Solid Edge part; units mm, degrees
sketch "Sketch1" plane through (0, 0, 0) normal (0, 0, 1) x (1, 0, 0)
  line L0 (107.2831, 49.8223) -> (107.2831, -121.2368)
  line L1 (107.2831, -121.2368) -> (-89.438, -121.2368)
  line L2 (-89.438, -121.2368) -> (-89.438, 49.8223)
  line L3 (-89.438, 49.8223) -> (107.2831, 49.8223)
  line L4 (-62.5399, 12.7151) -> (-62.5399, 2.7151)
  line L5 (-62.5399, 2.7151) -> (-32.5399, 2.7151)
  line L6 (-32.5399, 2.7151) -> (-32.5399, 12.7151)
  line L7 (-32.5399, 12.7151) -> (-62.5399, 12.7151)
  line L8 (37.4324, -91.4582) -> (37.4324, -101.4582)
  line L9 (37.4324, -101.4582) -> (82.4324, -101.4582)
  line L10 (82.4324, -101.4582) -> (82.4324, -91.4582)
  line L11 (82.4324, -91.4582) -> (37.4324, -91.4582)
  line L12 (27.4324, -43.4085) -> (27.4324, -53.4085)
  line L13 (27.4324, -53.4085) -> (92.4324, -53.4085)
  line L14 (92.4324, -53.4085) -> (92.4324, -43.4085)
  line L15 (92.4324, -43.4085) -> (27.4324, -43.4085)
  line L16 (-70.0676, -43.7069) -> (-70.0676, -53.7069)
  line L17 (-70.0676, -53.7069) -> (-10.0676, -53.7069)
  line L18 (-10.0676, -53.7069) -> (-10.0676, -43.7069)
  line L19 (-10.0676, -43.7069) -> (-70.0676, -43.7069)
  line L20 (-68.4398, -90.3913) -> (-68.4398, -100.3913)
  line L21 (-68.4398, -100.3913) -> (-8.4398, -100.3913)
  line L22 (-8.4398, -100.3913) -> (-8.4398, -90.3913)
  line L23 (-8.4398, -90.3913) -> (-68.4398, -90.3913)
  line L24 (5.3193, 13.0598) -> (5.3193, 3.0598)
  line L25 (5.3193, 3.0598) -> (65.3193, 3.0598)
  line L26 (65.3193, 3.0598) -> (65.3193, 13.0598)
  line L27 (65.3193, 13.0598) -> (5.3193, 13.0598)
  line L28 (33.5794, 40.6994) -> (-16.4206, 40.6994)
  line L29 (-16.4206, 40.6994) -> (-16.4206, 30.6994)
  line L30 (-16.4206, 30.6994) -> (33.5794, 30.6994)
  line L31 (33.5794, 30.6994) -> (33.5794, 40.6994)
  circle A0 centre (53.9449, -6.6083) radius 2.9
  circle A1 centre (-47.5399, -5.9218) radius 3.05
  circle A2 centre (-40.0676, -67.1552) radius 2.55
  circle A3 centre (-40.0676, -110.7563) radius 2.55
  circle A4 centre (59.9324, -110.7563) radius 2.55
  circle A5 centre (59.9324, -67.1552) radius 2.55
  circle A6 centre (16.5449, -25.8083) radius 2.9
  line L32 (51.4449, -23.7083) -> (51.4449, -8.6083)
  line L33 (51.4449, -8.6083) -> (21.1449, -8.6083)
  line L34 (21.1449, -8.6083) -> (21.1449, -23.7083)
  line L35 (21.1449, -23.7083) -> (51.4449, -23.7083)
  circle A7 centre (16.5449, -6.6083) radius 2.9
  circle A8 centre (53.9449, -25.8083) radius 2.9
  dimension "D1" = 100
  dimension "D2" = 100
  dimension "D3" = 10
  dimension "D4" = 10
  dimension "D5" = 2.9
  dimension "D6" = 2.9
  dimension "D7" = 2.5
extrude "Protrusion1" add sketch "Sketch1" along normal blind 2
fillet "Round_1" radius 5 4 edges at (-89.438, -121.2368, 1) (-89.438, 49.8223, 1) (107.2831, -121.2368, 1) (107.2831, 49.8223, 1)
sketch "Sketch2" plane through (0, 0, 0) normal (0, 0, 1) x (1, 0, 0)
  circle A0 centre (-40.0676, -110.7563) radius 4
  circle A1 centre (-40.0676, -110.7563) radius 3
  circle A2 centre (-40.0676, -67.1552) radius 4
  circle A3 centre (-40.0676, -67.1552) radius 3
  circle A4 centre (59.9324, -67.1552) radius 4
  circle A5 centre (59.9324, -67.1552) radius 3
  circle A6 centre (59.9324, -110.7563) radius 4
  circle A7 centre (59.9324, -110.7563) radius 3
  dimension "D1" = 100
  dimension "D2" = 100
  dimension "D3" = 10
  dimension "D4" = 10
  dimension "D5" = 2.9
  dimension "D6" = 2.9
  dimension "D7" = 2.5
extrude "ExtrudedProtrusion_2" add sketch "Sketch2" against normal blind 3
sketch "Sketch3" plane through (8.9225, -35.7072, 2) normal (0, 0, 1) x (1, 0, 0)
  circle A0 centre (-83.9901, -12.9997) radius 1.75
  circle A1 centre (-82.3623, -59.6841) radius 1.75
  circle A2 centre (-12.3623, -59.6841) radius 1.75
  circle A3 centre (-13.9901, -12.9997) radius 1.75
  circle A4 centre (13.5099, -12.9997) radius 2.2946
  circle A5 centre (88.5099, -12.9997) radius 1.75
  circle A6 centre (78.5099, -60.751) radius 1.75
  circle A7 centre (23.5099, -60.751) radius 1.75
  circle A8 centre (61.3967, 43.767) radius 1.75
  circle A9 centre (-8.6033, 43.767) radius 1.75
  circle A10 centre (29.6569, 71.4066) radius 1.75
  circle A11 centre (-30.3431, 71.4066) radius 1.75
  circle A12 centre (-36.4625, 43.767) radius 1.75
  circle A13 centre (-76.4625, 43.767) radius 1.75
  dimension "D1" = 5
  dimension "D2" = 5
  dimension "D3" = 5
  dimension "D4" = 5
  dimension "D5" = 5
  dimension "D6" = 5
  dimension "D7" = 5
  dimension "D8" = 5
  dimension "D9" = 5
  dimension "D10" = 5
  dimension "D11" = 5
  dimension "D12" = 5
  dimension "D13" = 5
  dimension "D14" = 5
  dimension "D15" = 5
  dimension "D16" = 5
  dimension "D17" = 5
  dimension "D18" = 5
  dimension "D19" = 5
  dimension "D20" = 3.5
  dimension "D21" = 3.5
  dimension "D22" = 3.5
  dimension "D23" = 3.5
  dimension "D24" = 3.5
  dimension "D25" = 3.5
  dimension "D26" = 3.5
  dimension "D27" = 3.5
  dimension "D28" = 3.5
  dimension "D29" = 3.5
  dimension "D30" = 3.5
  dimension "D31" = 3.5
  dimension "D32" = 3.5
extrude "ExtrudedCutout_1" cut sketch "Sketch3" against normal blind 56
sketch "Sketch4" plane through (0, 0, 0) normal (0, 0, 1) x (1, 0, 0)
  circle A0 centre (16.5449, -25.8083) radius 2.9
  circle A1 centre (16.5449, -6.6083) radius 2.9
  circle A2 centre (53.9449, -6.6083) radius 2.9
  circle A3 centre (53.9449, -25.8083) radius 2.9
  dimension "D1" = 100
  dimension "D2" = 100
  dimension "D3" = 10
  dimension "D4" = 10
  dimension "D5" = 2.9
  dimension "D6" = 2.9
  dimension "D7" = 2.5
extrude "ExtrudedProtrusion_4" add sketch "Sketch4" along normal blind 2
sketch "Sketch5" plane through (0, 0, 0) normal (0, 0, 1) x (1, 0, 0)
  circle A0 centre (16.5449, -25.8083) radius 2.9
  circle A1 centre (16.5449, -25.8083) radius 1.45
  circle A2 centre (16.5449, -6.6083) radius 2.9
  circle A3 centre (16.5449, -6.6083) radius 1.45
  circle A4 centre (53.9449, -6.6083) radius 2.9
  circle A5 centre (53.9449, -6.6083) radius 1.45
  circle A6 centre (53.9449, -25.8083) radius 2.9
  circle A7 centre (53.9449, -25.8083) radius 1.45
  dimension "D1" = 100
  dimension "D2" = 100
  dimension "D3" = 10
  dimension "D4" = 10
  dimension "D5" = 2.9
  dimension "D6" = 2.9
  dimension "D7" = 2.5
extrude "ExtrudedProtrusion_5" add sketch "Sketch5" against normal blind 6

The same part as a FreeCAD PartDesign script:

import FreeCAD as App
import Part
import Sketcher
from FreeCAD import Vector
Q = App.Units.Quantity


def edges_at(feature, points):
    """Names of the edges that pass closest to the given points."""
    edges = feature.Shape.Edges
    near = lambda p: min(range(len(edges)), key=lambda i: edges[i].distToShape(Part.Vertex(*p))[0])
    return sorted({f"Edge{near(p) + 1}" for p in points})


def add_polygon(sketch, points):
    """Adds a closed chain of lines whose ends are joined by coincident constraints."""
    first, n = sketch.GeometryCount, len(points)
    for a, b in zip(points, points[1:] + points[:1]):
        sketch.addGeometry(Part.LineSegment(App.Vector(*a, 0), App.Vector(*b, 0)), False)
    for i in range(n):
        sketch.addConstraint(Sketcher.Constraint("Coincident", first + i, 2, first + (i + 1) % n, 1))

doc = App.newDocument("Part")
body = doc.addObject("PartDesign::Body", "Body")

sketch1 = body.newObject("Sketcher::SketchObject", "Sketch")
sketch1.AttachmentSupport = (doc.getObject("XY_Plane"), [""])
sketch1.MapMode = "FlatFace"
add_polygon(sketch1, [(107.3, -121.2), (107.3, 49.8), (-89.4, 49.8), (-89.4, -121.2)])
sketch1.addGeometry(Part.Circle(Vector(-40.1, -110.8, 0), Vector(0, 0, 1), 2.5), False)
add_polygon(sketch1, [(-68.4, -100.4), (-68.4, -90.4), (-8.4, -90.4), (-8.4, -100.4)])
sketch1.addGeometry(Part.Circle(Vector(-40.1, -67.2, 0), Vector(0, 0, 1), 2.5), False)
add_polygon(sketch1, [(-70.1, -53.7), (-70.1, -43.7), (-10.1, -43.7), (-10.1, -53.7)])
sketch1.addGeometry(Part.Circle(Vector(59.9, -110.8, 0), Vector(0, 0, 1), 2.5), False)
add_polygon(sketch1, [(37.4, -101.5), (37.4, -91.5), (82.4, -91.5), (82.4, -101.5)])
sketch1.addGeometry(Part.Circle(Vector(59.9, -67.2, 0), Vector(0, 0, 1), 2.5), False)
add_polygon(sketch1, [(27.4, -53.4), (27.4, -43.4), (92.4, -43.4), (92.4, -53.4)])
sketch1.addGeometry(Part.Circle(Vector(-47.5, -5.9, 0), Vector(0, 0, 1), 3), False)
add_polygon(sketch1, [(-62.5, 2.7), (-62.5, 12.7), (-32.5, 12.7), (-32.5, 2.7)])
add_polygon(sketch1, [(-16.4, 40.7), (33.6, 40.7), (33.6, 30.7), (-16.4, 30.7)])
sketch1.addGeometry(Part.Circle(Vector(16.5, -25.8, 0), Vector(0, 0, 1), 2.9), False)
sketch1.addGeometry(Part.Circle(Vector(53.9, -25.8, 0), Vector(0, 0, 1), 2.9), False)
add_polygon(sketch1, [(51.4, -8.6), (51.4, -23.7), (21.1, -23.7), (21.1, -8.6)])
sketch1.addGeometry(Part.Circle(Vector(16.5, -6.6, 0), Vector(0, 0, 1), 2.9), False)
sketch1.addGeometry(Part.Circle(Vector(53.9, -6.6, 0), Vector(0, 0, 1), 2.9), False)
add_polygon(sketch1, [(5.3, 3.1), (5.3, 13.1), (65.3, 13.1), (65.3, 3.1)])
sketch1.addConstraint([
    Sketcher.Constraint("Vertical", 0),
    Sketcher.Constraint("Horizontal", 1),
    Sketcher.Constraint("Vertical", 2),
    Sketcher.Constraint("Horizontal", 3),
    Sketcher.Constraint("Vertical", 5),
    Sketcher.Constraint("Horizontal", 6),
    Sketcher.Constraint("Vertical", 7),
    Sketcher.Constraint("Horizontal", 8),
    Sketcher.Constraint("Vertical", 10),
    Sketcher.Constraint("Horizontal", 11),
    Sketcher.Constraint("Vertical", 12),
    Sketcher.Constraint("Horizontal", 13),
    Sketcher.Constraint("Vertical", 15),
    Sketcher.Constraint("Horizontal", 16),
    Sketcher.Constraint("Vertical", 17),
    Sketcher.Constraint("Horizontal", 18),
    Sketcher.Constraint("Vertical", 20),
    Sketcher.Constraint("Horizontal", 21),
    Sketcher.Constraint("Vertical", 22),
    Sketcher.Constraint("Horizontal", 23),
    Sketcher.Constraint("Vertical", 25),
    Sketcher.Constraint("Horizontal", 26),
    Sketcher.Constraint("Vertical", 27),
    Sketcher.Constraint("Horizontal", 28),
    Sketcher.Constraint("Horizontal", 29),
    Sketcher.Constraint("Vertical", 30),
    Sketcher.Constraint("Horizontal", 31),
    Sketcher.Constraint("Vertical", 32),
    Sketcher.Constraint("Vertical", 35),
    Sketcher.Constraint("Horizontal", 36),
    Sketcher.Constraint("Vertical", 37),
    Sketcher.Constraint("Horizontal", 38),
    Sketcher.Constraint("Vertical", 41),
    Sketcher.Constraint("Horizontal", 42),
    Sketcher.Constraint("Vertical", 43),
    Sketcher.Constraint("Horizontal", 44),
    Sketcher.Constraint("Equal", 4, 9),
    Sketcher.Constraint("Equal", 9, 14),
    Sketcher.Constraint("Equal", 14, 19),
    Sketcher.Constraint("Equal", 33, 34),
    Sketcher.Constraint("Equal", 34, 39),
    Sketcher.Constraint("Equal", 39, 40),
    Sketcher.Constraint("Horizontal", 4, 3, 14, 3),
    Sketcher.Constraint("Horizontal", 9, 3, 19, 3),
    Sketcher.Constraint("Horizontal", 33, 3, 34, 3),
    Sketcher.Constraint("Horizontal", 39, 3, 40, 3),
    Sketcher.Constraint("Vertical", 4, 3, 9, 3),
    Sketcher.Constraint("Vertical", 14, 3, 19, 3),
    Sketcher.Constraint("Vertical", 33, 3, 39, 3),
    Sketcher.Constraint("Vertical", 34, 3, 40, 3),
    Sketcher.Constraint("Equal", 8, 11),
    Sketcher.Constraint("Equal", 13, 42),
    Sketcher.Constraint("Equal", 7, 10),
    Sketcher.Constraint("Equal", 12, 15),
    Sketcher.Constraint("Equal", 17, 20),
    Sketcher.Constraint("Equal", 22, 25),
    Sketcher.Constraint("Equal", 27, 30),
    Sketcher.Constraint("Equal", 32, 41),
    Sketcher.Constraint("Diameter", 4, Q("5.1 mm")),
    Sketcher.Constraint("Diameter", 24, Q("6.1 mm")),
    Sketcher.Constraint("Diameter", 33, Q("5.8 mm")),
    Sketcher.Constraint("DistanceX", 6, 1, 6, 2, Q("60 mm")),
    Sketcher.Constraint("DistanceX", 16, 1, 16, 2, Q("45 mm")),
    Sketcher.Constraint("DistanceX", 21, 1, 21, 2, Q("65 mm")),
    Sketcher.Constraint("DistanceX", 26, 1, 26, 2, Q("30 mm")),
    Sketcher.Constraint("DistanceX", 29, 1, 29, 2, Q("50 mm")),
    Sketcher.Constraint("DistanceY", 5, 1, 5, 2, Q("10 mm")),
    Sketcher.Constraint("DistanceX", 36, 2, 36, 1, Q("30.3 mm")),
    Sketcher.Constraint("DistanceY", 35, 2, 35, 1, Q("15.1 mm")),
    Sketcher.Constraint("DistanceX", 4, 3, 14, 3, Q("100 mm")),
    Sketcher.Constraint("DistanceX", 10, 2, 9, 3, Q("30 mm")),
    Sketcher.Constraint("DistanceX", 16, 2, 21, 2, Q("10 mm")),
    Sketcher.Constraint("DistanceX", 25, 2, 24, 3, Q("15 mm")),
    Sketcher.Constraint("DistanceY", 37, 2, 39, 3, Q("2 mm")),
    Sketcher.Constraint("DistanceX", 33, 3, 34, 3, Q("37.4 mm")),
    Sketcher.Constraint("DistanceY", 33, 3, 39, 3, Q("19.2 mm")),
    Sketcher.Constraint("DistanceX", 5, 2, 24, 3, Q("20.9 mm")),
    Sketcher.Constraint("DistanceX", 15, 2, 14, 3, Q("22.5 mm")),
    Sketcher.Constraint("DistanceX", 35, 2, 34, 3, Q("2.5 mm")),
    Sketcher.Constraint("DistanceX", 1, 2, 1, 1, Q("196.721 mm")),
    Sketcher.Constraint("DistanceY", 0, 1, 0, 2, Q("171.059 mm")),
    Sketcher.Constraint("DistanceX", 24, 3, -1, 1, Q("47.54 mm")),
    Sketcher.Constraint("DistanceY", 16, 2, 34, 3, Q("65.65 mm")),
    Sketcher.Constraint("DistanceX", 31, 2, 41, 2, Q("21.74 mm")),
    Sketcher.Constraint("DistanceX", -1, 1, 33, 3, Q("16.545 mm")),
    Sketcher.Constraint("DistanceX", -1, 1, 0, 2, Q("107.283 mm")),
    Sketcher.Constraint("DistanceY", 10, 2, -1, 1, Q("43.707 mm")),
    Sketcher.Constraint("DistanceY", -1, 1, 25, 2, Q("12.715 mm")),
    Sketcher.Constraint("DistanceY", 4, 3, 9, 3, Q("43.601 mm")),
    Sketcher.Constraint("DistanceY", 19, 3, 33, 3, Q("41.347 mm")),
    Sketcher.Constraint("DistanceY", 24, 3, 1, 2, Q("55.744 mm")),
    Sketcher.Constraint("DistanceY", 4, 3, 5, 2, Q("20.365 mm")),
    Sketcher.Constraint("DistanceY", 10, 2, 24, 3, Q("37.785 mm")),
    Sketcher.Constraint("DistanceY", 39, 3, 41, 2, Q("19.668 mm")),
    Sketcher.Constraint("DistanceX", 4, 3, -1, 1, Q("40.0676 mm")),
    Sketcher.Constraint("DistanceY", 4, 3, -1, 1, Q("110.7563 mm")),
    Sketcher.Constraint("DistanceY", 20, 2, -1, 1, Q("43.4085 mm")),
    Sketcher.Constraint("DistanceX", -1, 1, 29, 2, Q("33.5794 mm")),
    Sketcher.Constraint("DistanceY", -1, 1, 29, 2, Q("40.6994 mm")),
])
pad1 = body.newObject("PartDesign::Pad", "Pad")
pad1.Profile = sketch1
pad1.Length = 2
doc.recompute()

fillet = body.newObject("PartDesign::Fillet", "Fillet")
fillet.Base = (pad1, edges_at(pad1, [
    (-89.438, -121.237, 1),
    (-89.438, 49.822, 1),
    (107.283, -121.237, 1),
    (107.283, 49.822, 1),
]))
fillet.Radius = 5

sketch2 = body.newObject("Sketcher::SketchObject", "Sketch001")
sketch2.AttachmentSupport = (doc.getObject("XY_Plane"), [""])
sketch2.MapMode = "FlatFace"
sketch2.addGeometry([
    Part.Circle(Vector(-40.1, -110.8, 0), Vector(0, 0, 1), 4),
    Part.Circle(Vector(-40.1, -110.8, 0), Vector(0, 0, 1), 3),
    Part.Circle(Vector(-40.1, -67.2, 0), Vector(0, 0, 1), 4),
    Part.Circle(Vector(-40.1, -67.2, 0), Vector(0, 0, 1), 3),
    Part.Circle(Vector(59.9, -67.2, 0), Vector(0, 0, 1), 4),
    Part.Circle(Vector(59.9, -67.2, 0), Vector(0, 0, 1), 3),
    Part.Circle(Vector(59.9, -110.8, 0), Vector(0, 0, 1), 4),
    Part.Circle(Vector(59.9, -110.8, 0), Vector(0, 0, 1), 3),
], False)
sketch2.addConstraint([
    Sketcher.Constraint("Coincident", 1, 3, 0, 3),
    Sketcher.Constraint("Coincident", 3, 3, 2, 3),
    Sketcher.Constraint("Coincident", 5, 3, 4, 3),
    Sketcher.Constraint("Coincident", 7, 3, 6, 3),
    Sketcher.Constraint("Equal", 0, 2),
    Sketcher.Constraint("Equal", 1, 3),
    Sketcher.Constraint("Equal", 2, 4),
    Sketcher.Constraint("Equal", 3, 5),
    Sketcher.Constraint("Equal", 4, 6),
    Sketcher.Constraint("Equal", 5, 7),
    Sketcher.Constraint("Horizontal", 3, 3, 4, 3),
    Sketcher.Constraint("Horizontal", 1, 3, 6, 3),
    Sketcher.Constraint("Vertical", 1, 3, 2, 3),
    Sketcher.Constraint("Vertical", 5, 3, 6, 3),
    Sketcher.Constraint("Diameter", 0, Q("8 mm")),
    Sketcher.Constraint("Diameter", 1, Q("6 mm")),
    Sketcher.Constraint("DistanceX", 2, 3, 4, 3, Q("100 mm")),
    Sketcher.Constraint("DistanceY", 0, 3, 2, 3, Q("43.601 mm")),
    Sketcher.Constraint("DistanceX", 0, 3, -1, 1, Q("40.0676 mm")),
    Sketcher.Constraint("DistanceY", 0, 3, -1, 1, Q("110.7563 mm")),
])
pad2 = body.newObject("PartDesign::Pad", "Pad001")
pad2.Profile = sketch2
pad2.Length = 3
pad2.Reversed = True

sketch3 = body.newObject("Sketcher::SketchObject", "Sketch002")
sketch3.AttachmentSupport = (doc.getObject("XY_Plane"), [""])
sketch3.MapMode = "FlatFace"
sketch3.AttachmentOffset = App.Placement(Vector(0, 0, 2), App.Rotation())
sketch3.addGeometry([
    Part.Circle(Vector(-75.1, -48.7, 0), Vector(0, 0, 1), 1.8),
    Part.Circle(Vector(-73.4, -95.4, 0), Vector(0, 0, 1), 1.8),
    Part.Circle(Vector(-3.4, -95.4, 0), Vector(0, 0, 1), 1.8),
    Part.Circle(Vector(-5.1, -48.7, 0), Vector(0, 0, 1), 1.8),
    Part.Circle(Vector(22.4, -48.7, 0), Vector(0, 0, 1), 2.3),
    Part.Circle(Vector(97.4, -48.7, 0), Vector(0, 0, 1), 1.8),
    Part.Circle(Vector(87.4, -96.5, 0), Vector(0, 0, 1), 1.8),
    Part.Circle(Vector(32.4, -96.5, 0), Vector(0, 0, 1), 1.8),
    Part.Circle(Vector(70.3, 8.1, 0), Vector(0, 0, 1), 1.8),
    Part.Circle(Vector(0.3, 8.1, 0), Vector(0, 0, 1), 1.8),
    Part.Circle(Vector(38.6, 35.7, 0), Vector(0, 0, 1), 1.8),
    Part.Circle(Vector(-21.4, 35.7, 0), Vector(0, 0, 1), 1.8),
    Part.Circle(Vector(-27.5, 8.1, 0), Vector(0, 0, 1), 1.8),
    Part.Circle(Vector(-67.5, 8.1, 0), Vector(0, 0, 1), 1.8),
], False)
sketch3.addConstraint([
    Sketcher.Constraint("Equal", 0, 1),
    Sketcher.Constraint("Equal", 1, 2),
    Sketcher.Constraint("Equal", 2, 3),
    Sketcher.Constraint("Equal", 3, 5),
    Sketcher.Constraint("Equal", 5, 6),
    Sketcher.Constraint("Equal", 6, 7),
    Sketcher.Constraint("Equal", 7, 8),
    Sketcher.Constraint("Equal", 8, 9),
    Sketcher.Constraint("Equal", 9, 10),
    Sketcher.Constraint("Equal", 10, 11),
    Sketcher.Constraint("Equal", 11, 12),
    Sketcher.Constraint("Equal", 12, 13),
    Sketcher.Constraint("Horizontal", 1, 3, 2, 3),
    Sketcher.Constraint("Horizontal", 0, 3, 3, 3),
    Sketcher.Constraint("Horizontal", 3, 3, 4, 3),
    Sketcher.Constraint("Horizontal", 4, 3, 5, 3),
    Sketcher.Constraint("Horizontal", 6, 3, 7, 3),
    Sketcher.Constraint("Horizontal", 8, 3, 9, 3),
    Sketcher.Constraint("Horizontal", 10, 3, 11, 3),
    Sketcher.Constraint("Horizontal", 9, 3, 12, 3),
    Sketcher.Constraint("Horizontal", 12, 3, 13, 3),
    Sketcher.Constraint("Diameter", 0, Q("3.5 mm")),
    Sketcher.Constraint("DistanceX", 1, 3, 2, 3, Q("70 mm")),
    Sketcher.Constraint("DistanceX", 0, 3, 3, 3, Q("70 mm")),
    Sketcher.Constraint("DistanceX", 4, 3, 5, 3, Q("75 mm")),
    Sketcher.Constraint("DistanceX", 6, 3, 5, 3, Q("10 mm")),
    Sketcher.Constraint("DistanceX", 4, 3, 7, 3, Q("10 mm")),
    Sketcher.Constraint("DistanceX", 9, 3, 8, 3, Q("70 mm")),
    Sketcher.Constraint("DistanceX", 11, 3, 10, 3, Q("60 mm")),
    Sketcher.Constraint("DistanceX", 13, 3, 12, 3, Q("40 mm")),
    Sketcher.Constraint("Diameter", 4, Q("4.5892 mm")),
    Sketcher.Constraint("DistanceX", 3, 3, 4, 3, Q("27.5 mm")),
    Sketcher.Constraint("DistanceX", 12, 3, -1, 1, Q("27.54 mm")),
    Sketcher.Constraint("DistanceY", 0, 3, -1, 1, Q("48.707 mm")),
    Sketcher.Constraint("DistanceY", 6, 3, 2, 3, Q("1.067 mm")),
    Sketcher.Constraint("DistanceY", 6, 3, 8, 3, Q("104.518 mm")),
    Sketcher.Constraint("DistanceX", 2, 3, 9, 3, Q("3.759 mm")),
    Sketcher.Constraint("DistanceX", 4, 3, 10, 3, Q("16.147 mm")),
    Sketcher.Constraint("DistanceX", 0, 3, -1, 1, Q("75.0676 mm")),
    Sketcher.Constraint("DistanceX", 1, 3, -1, 1, Q("73.4398 mm")),
    Sketcher.Constraint("DistanceY", 1, 3, -1, 1, Q("95.3913 mm")),
    Sketcher.Constraint("DistanceY", -1, 1, 10, 3, Q("35.6994 mm")),
])
pocket1 = body.newObject("PartDesign::Pocket", "Pocket")
pocket1.Profile = sketch3
pocket1.Length = 56

sketch4 = body.newObject("Sketcher::SketchObject", "Sketch003")
sketch4.AttachmentSupport = (doc.getObject("XY_Plane"), [""])
sketch4.MapMode = "FlatFace"
sketch4.addGeometry([
    Part.Circle(Vector(16.5, -25.8, 0), Vector(0, 0, 1), 2.9),
    Part.Circle(Vector(16.5, -6.6, 0), Vector(0, 0, 1), 2.9),
    Part.Circle(Vector(53.9, -6.6, 0), Vector(0, 0, 1), 2.9),
    Part.Circle(Vector(53.9, -25.8, 0), Vector(0, 0, 1), 2.9),
], False)
sketch4.addConstraint([
    Sketcher.Constraint("Equal", 0, 1),
    Sketcher.Constraint("Equal", 1, 2),
    Sketcher.Constraint("Equal", 2, 3),
    Sketcher.Constraint("Horizontal", 1, 3, 2, 3),
    Sketcher.Constraint("Horizontal", 0, 3, 3, 3),
    Sketcher.Constraint("Vertical", 0, 3, 1, 3),
    Sketcher.Constraint("Vertical", 2, 3, 3, 3),
    Sketcher.Constraint("Diameter", 0, Q("5.8 mm")),
    Sketcher.Constraint("DistanceY", 0, 3, 1, 3, Q("19.2 mm")),
    Sketcher.Constraint("DistanceX", 1, 3, 2, 3, Q("37.4 mm")),
    Sketcher.Constraint("DistanceX", -1, 1, 0, 3, Q("16.545 mm")),
    Sketcher.Constraint("DistanceY", 0, 3, -1, 1, Q("25.8083 mm")),
])
pad3 = body.newObject("PartDesign::Pad", "Pad002")
pad3.Profile = sketch4
pad3.Length = 2

sketch5 = body.newObject("Sketcher::SketchObject", "Sketch004")
sketch5.AttachmentSupport = (doc.getObject("XY_Plane"), [""])
sketch5.MapMode = "FlatFace"
sketch5.addGeometry([
    Part.Circle(Vector(16.5, -25.8, 0), Vector(0, 0, 1), 2.9),
    Part.Circle(Vector(16.5, -25.8, 0), Vector(0, 0, 1), 1.4),
    Part.Circle(Vector(16.5, -6.6, 0), Vector(0, 0, 1), 2.9),
    Part.Circle(Vector(16.5, -6.6, 0), Vector(0, 0, 1), 1.4),
    Part.Circle(Vector(53.9, -6.6, 0), Vector(0, 0, 1), 2.9),
    Part.Circle(Vector(53.9, -6.6, 0), Vector(0, 0, 1), 1.4),
    Part.Circle(Vector(53.9, -25.8, 0), Vector(0, 0, 1), 2.9),
    Part.Circle(Vector(53.9, -25.8, 0), Vector(0, 0, 1), 1.4),
], False)
sketch5.addConstraint([
    Sketcher.Constraint("Coincident", 1, 3, 0, 3),
    Sketcher.Constraint("Coincident", 3, 3, 2, 3),
    Sketcher.Constraint("Coincident", 5, 3, 4, 3),
    Sketcher.Constraint("Coincident", 7, 3, 6, 3),
    Sketcher.Constraint("Equal", 0, 2),
    Sketcher.Constraint("Equal", 1, 3),
    Sketcher.Constraint("Equal", 2, 4),
    Sketcher.Constraint("Equal", 3, 5),
    Sketcher.Constraint("Equal", 4, 6),
    Sketcher.Constraint("Equal", 5, 7),
    Sketcher.Constraint("Horizontal", 3, 3, 4, 3),
    Sketcher.Constraint("Horizontal", 1, 3, 6, 3),
    Sketcher.Constraint("Vertical", 1, 3, 2, 3),
    Sketcher.Constraint("Vertical", 5, 3, 6, 3),
    Sketcher.Constraint("Diameter", 0, Q("5.8 mm")),
    Sketcher.Constraint("Diameter", 1, Q("2.9 mm")),
    Sketcher.Constraint("DistanceY", 0, 3, 2, 3, Q("19.2 mm")),
    Sketcher.Constraint("DistanceX", 2, 3, 4, 3, Q("37.4 mm")),
    Sketcher.Constraint("DistanceX", -1, 1, 0, 3, Q("16.545 mm")),
    Sketcher.Constraint("DistanceY", 0, 3, -1, 1, Q("25.8083 mm")),
])
pad4 = body.newObject("PartDesign::Pad", "Pad003")
pad4.Profile = sketch5
pad4.Length = 6
pad4.Reversed = True

doc.recompute()
